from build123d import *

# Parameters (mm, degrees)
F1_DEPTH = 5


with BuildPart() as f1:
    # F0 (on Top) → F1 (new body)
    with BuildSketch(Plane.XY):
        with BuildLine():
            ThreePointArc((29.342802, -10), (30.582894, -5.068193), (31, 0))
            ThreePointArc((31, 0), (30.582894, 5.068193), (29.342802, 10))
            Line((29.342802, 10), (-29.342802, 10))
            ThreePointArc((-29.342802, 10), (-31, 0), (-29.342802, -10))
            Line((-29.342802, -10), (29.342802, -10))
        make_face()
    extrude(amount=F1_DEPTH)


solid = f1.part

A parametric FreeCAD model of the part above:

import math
import FreeCAD as App
import Part
import Sketcher
Q = App.Units.Quantity

doc = App.newDocument("Part")
body = doc.addObject("PartDesign::Body", "Body")

# Sketch on XY plane
sketch1 = body.newObject("Sketcher::SketchObject", "Sketch")
sketch1.AttachmentSupport = (doc.getObject("XY_Plane"), [""])
sketch1.MapMode = "FlatFace"
sketch1.addGeometry([
    Part.ArcOfCircle(Part.Circle(App.Vector(-0.000034, 0.000004, 0), App.Vector(0, 0, 1), 31.000034), math.radians(-18.81905), math.radians(-0.000008)),  # 0
    Part.ArcOfCircle(Part.Circle(App.Vector(-0.000034, -0.000004, 0), App.Vector(0, 0, 1), 31.000034), math.radians(0.000008), math.radians(18.81905)),  # 1
    Part.LineSegment(App.Vector(29.342802, 10, 0), App.Vector(-29.342802, 10, 0)),  # 2
    Part.ArcOfCircle(Part.Circle(App.Vector(0.000009, 0, 0), App.Vector(0, 0, 1), 31.000009), math.radians(161.180942), math.radians(198.819058)),  # 3
    Part.LineSegment(App.Vector(-29.342802, -10, 0), App.Vector(29.342802, -10, 0)),  # 4
], False)
sketch1.addConstraint([
    Sketcher.Constraint("Coincident", 0, 2, 1, 1),
    Sketcher.Constraint("Coincident", 1, 2, 2, 1),
    Sketcher.Constraint("Coincident", 2, 2, 3, 1),
    Sketcher.Constraint("Coincident", 3, 2, 4, 1),
    Sketcher.Constraint("Coincident", 4, 2, 0, 1),
    Sketcher.Constraint("Horizontal", 2),
    Sketcher.Constraint("Horizontal", 4),
    Sketcher.Constraint("Coincident", 3, 3, -1, 1),
    Sketcher.Constraint("Coincident", 1, 3, 0, 3),
    Sketcher.Constraint("PointOnObject", 0, 2, -1),
    Sketcher.Constraint("DistanceX", -1, 1, 0, 2, Q("31 mm")),
    Sketcher.Constraint("DistanceY", -1, 1, 1, 2, Q("10 mm")),
    Sketcher.Constraint("DistanceY", 3, 2, -1, 1, Q("10 mm")),
    Sketcher.Constraint("Radius", 3, Q("31.000009 mm")),
    Sketcher.Constraint("Radius", 0, Q("31.000034 mm")),
    Sketcher.Constraint("DistanceX", -1, 1, 4, 2, Q("29.342802 mm")),
])
pad1 = body.newObject("PartDesign::Pad", "Pad")
pad1.Profile = sketch1
pad1.Length = 5

doc.recompute()
